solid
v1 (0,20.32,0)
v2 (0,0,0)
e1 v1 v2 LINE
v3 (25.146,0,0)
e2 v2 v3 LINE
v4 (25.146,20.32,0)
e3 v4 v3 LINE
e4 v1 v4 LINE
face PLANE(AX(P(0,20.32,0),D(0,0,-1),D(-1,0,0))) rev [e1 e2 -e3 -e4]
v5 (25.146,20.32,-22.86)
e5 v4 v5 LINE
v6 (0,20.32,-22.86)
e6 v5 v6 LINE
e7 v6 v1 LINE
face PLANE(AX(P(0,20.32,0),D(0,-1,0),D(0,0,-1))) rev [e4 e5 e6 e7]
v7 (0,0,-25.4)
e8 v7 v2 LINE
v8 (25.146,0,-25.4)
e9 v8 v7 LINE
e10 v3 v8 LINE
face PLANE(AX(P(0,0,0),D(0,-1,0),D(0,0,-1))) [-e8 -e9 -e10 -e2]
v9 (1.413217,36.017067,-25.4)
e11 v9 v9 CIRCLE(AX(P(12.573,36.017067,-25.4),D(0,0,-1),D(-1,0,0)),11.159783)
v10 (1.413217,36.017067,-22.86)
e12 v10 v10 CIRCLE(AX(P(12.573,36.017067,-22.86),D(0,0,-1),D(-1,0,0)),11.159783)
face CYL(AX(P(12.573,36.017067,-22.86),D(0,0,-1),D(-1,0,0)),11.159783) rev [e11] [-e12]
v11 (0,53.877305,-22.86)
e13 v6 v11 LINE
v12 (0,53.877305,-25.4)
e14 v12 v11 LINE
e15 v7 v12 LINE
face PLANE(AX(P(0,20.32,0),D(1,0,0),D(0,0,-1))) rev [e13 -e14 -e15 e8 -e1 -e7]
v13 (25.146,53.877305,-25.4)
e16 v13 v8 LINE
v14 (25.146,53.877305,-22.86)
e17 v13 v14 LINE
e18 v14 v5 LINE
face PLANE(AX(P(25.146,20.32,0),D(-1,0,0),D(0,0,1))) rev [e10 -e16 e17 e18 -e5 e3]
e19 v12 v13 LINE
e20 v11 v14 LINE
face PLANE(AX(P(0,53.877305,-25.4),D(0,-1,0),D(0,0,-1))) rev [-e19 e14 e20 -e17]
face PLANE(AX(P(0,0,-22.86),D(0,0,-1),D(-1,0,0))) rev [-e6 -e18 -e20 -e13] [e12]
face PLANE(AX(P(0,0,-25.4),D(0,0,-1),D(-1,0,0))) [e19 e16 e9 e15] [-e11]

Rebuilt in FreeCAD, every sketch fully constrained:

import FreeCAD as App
import Part
import Sketcher
Q = App.Units.Quantity


def add_polygon(sketch, points):
    """Adds a closed chain of lines whose ends are joined by coincident constraints."""
    first, n = sketch.GeometryCount, len(points)
    for a, b in zip(points, points[1:] + points[:1]):
        sketch.addGeometry(Part.LineSegment(App.Vector(*a, 0), App.Vector(*b, 0)), False)
    for i in range(n):
        sketch.addConstraint(Sketcher.Constraint("Coincident", first + i, 2, first + (i + 1) % n, 1))

doc = App.newDocument("Part")
params = doc.addObject("Spreadsheet::Sheet", "Params")
for row, (alias, value) in enumerate([
    ("sketch1_height", "0.9 in"),
    ("sketch1_width", "0.99 in"),
    ("pad1_length", "0.8 in"),
    ("sketch2_width", "0.99 in"),
    ("pad2_length", "0.1 in"),
    ("pocket1_length", "0.1 in"),
], start=1):
    params.set(f"A{row}", alias)
    params.set(f"B{row}", "=" + value)
    params.setAlias(f"B{row}", alias)

body = doc.addObject("PartDesign::Body", "Body")

sketch1 = body.newObject("Sketcher::SketchObject", "Sketch")
sketch1.AttachmentSupport = (doc.getObject("XZ_Plane"), [""])
sketch1.MapMode = "FlatFace"
add_polygon(sketch1, [(0, -23), (0, 0), (25, 0), (25, -23)])
sketch1.addConstraint(Sketcher.Constraint("Vertical", 0))
sketch1.addConstraint(Sketcher.Constraint("Horizontal", 1))
sketch1.addConstraint(Sketcher.Constraint("Vertical", 2))
sketch1.addConstraint(Sketcher.Constraint("Horizontal", 3))
sketch1.addConstraint(Sketcher.Constraint("Coincident", 0, 2, -1, 1))
sketch1.addConstraint(Sketcher.Constraint("DistanceY", 0, 1, 0, 2, Q("0.9 in")))
sketch1.addConstraint(Sketcher.Constraint("DistanceX", 1, 1, 1, 2, Q("0.99 in")))
sketch1.setExpression("Constraints[9]", "Params.sketch1_height")
sketch1.setExpression("Constraints[10]", "Params.sketch1_width")
pad1 = body.newObject("PartDesign::Pad", "Pad")
pad1.Profile = sketch1
pad1.setExpression("Length", "Params.pad1_length")
pad1.Reversed = True

sketch2 = body.newObject("Sketcher::SketchObject", "Sketch001")
sketch2.AttachmentSupport = (doc.getObject("XY_Plane"), [""])
sketch2.MapMode = "FlatFace"
sketch2.AttachmentOffset = App.Placement(App.Vector(0, 0, -0.9 * 25.4), App.Rotation())
add_polygon(sketch2, [(25, 54), (25, 0), (0, 0), (0, 54)])
sketch2.addConstraint(Sketcher.Constraint("Vertical", 0))
sketch2.addConstraint(Sketcher.Constraint("Horizontal", 1))
sketch2.addConstraint(Sketcher.Constraint("Vertical", 2))
sketch2.addConstraint(Sketcher.Constraint("Horizontal", 3))
sketch2.addConstraint(Sketcher.Constraint("Coincident", 1, 2, -1, 1))
sketch2.addConstraint(Sketcher.Constraint("DistanceX", 1, 2, 1, 1, Q("0.99 in")))
sketch2.addConstraint(Sketcher.Constraint("DistanceY", 0, 2, 0, 1, 53.877305))
sketch2.setExpression("Constraints[9]", "Params.sketch2_width")
pad2 = body.newObject("PartDesign::Pad", "Pad001")
pad2.Profile = sketch2
pad2.setExpression("Length", "Params.pad2_length")
pad2.Reversed = True

sketch3 = body.newObject("Sketcher::SketchObject", "Sketch002")
sketch3.AttachmentSupport = (doc.getObject("XY_Plane"), [""])
sketch3.MapMode = "FlatFace"
sketch3.AttachmentOffset = App.Placement(App.Vector(0, 0, -1 * 25.4), App.Rotation())
sketch3.addGeometry(Part.Circle(App.Vector(13, 36, 0), App.Vector(0, 0, 1), 11), False)
sketch3.addConstraint(Sketcher.Constraint("DistanceX", -1, 1, 0, 3, Q("0.495 in")))
sketch3.addConstraint(Sketcher.Constraint("Diameter", 0, 22.319567))
sketch3.addConstraint(Sketcher.Constraint("DistanceY", -1, 1, 0, 3, 36.017067))
pocket1 = body.newObject("PartDesign::Pocket", "Pocket")
pocket1.Profile = sketch3
pocket1.setExpression("Length", "Params.pocket1_length")
pocket1.Reversed = True

doc.recompute()
